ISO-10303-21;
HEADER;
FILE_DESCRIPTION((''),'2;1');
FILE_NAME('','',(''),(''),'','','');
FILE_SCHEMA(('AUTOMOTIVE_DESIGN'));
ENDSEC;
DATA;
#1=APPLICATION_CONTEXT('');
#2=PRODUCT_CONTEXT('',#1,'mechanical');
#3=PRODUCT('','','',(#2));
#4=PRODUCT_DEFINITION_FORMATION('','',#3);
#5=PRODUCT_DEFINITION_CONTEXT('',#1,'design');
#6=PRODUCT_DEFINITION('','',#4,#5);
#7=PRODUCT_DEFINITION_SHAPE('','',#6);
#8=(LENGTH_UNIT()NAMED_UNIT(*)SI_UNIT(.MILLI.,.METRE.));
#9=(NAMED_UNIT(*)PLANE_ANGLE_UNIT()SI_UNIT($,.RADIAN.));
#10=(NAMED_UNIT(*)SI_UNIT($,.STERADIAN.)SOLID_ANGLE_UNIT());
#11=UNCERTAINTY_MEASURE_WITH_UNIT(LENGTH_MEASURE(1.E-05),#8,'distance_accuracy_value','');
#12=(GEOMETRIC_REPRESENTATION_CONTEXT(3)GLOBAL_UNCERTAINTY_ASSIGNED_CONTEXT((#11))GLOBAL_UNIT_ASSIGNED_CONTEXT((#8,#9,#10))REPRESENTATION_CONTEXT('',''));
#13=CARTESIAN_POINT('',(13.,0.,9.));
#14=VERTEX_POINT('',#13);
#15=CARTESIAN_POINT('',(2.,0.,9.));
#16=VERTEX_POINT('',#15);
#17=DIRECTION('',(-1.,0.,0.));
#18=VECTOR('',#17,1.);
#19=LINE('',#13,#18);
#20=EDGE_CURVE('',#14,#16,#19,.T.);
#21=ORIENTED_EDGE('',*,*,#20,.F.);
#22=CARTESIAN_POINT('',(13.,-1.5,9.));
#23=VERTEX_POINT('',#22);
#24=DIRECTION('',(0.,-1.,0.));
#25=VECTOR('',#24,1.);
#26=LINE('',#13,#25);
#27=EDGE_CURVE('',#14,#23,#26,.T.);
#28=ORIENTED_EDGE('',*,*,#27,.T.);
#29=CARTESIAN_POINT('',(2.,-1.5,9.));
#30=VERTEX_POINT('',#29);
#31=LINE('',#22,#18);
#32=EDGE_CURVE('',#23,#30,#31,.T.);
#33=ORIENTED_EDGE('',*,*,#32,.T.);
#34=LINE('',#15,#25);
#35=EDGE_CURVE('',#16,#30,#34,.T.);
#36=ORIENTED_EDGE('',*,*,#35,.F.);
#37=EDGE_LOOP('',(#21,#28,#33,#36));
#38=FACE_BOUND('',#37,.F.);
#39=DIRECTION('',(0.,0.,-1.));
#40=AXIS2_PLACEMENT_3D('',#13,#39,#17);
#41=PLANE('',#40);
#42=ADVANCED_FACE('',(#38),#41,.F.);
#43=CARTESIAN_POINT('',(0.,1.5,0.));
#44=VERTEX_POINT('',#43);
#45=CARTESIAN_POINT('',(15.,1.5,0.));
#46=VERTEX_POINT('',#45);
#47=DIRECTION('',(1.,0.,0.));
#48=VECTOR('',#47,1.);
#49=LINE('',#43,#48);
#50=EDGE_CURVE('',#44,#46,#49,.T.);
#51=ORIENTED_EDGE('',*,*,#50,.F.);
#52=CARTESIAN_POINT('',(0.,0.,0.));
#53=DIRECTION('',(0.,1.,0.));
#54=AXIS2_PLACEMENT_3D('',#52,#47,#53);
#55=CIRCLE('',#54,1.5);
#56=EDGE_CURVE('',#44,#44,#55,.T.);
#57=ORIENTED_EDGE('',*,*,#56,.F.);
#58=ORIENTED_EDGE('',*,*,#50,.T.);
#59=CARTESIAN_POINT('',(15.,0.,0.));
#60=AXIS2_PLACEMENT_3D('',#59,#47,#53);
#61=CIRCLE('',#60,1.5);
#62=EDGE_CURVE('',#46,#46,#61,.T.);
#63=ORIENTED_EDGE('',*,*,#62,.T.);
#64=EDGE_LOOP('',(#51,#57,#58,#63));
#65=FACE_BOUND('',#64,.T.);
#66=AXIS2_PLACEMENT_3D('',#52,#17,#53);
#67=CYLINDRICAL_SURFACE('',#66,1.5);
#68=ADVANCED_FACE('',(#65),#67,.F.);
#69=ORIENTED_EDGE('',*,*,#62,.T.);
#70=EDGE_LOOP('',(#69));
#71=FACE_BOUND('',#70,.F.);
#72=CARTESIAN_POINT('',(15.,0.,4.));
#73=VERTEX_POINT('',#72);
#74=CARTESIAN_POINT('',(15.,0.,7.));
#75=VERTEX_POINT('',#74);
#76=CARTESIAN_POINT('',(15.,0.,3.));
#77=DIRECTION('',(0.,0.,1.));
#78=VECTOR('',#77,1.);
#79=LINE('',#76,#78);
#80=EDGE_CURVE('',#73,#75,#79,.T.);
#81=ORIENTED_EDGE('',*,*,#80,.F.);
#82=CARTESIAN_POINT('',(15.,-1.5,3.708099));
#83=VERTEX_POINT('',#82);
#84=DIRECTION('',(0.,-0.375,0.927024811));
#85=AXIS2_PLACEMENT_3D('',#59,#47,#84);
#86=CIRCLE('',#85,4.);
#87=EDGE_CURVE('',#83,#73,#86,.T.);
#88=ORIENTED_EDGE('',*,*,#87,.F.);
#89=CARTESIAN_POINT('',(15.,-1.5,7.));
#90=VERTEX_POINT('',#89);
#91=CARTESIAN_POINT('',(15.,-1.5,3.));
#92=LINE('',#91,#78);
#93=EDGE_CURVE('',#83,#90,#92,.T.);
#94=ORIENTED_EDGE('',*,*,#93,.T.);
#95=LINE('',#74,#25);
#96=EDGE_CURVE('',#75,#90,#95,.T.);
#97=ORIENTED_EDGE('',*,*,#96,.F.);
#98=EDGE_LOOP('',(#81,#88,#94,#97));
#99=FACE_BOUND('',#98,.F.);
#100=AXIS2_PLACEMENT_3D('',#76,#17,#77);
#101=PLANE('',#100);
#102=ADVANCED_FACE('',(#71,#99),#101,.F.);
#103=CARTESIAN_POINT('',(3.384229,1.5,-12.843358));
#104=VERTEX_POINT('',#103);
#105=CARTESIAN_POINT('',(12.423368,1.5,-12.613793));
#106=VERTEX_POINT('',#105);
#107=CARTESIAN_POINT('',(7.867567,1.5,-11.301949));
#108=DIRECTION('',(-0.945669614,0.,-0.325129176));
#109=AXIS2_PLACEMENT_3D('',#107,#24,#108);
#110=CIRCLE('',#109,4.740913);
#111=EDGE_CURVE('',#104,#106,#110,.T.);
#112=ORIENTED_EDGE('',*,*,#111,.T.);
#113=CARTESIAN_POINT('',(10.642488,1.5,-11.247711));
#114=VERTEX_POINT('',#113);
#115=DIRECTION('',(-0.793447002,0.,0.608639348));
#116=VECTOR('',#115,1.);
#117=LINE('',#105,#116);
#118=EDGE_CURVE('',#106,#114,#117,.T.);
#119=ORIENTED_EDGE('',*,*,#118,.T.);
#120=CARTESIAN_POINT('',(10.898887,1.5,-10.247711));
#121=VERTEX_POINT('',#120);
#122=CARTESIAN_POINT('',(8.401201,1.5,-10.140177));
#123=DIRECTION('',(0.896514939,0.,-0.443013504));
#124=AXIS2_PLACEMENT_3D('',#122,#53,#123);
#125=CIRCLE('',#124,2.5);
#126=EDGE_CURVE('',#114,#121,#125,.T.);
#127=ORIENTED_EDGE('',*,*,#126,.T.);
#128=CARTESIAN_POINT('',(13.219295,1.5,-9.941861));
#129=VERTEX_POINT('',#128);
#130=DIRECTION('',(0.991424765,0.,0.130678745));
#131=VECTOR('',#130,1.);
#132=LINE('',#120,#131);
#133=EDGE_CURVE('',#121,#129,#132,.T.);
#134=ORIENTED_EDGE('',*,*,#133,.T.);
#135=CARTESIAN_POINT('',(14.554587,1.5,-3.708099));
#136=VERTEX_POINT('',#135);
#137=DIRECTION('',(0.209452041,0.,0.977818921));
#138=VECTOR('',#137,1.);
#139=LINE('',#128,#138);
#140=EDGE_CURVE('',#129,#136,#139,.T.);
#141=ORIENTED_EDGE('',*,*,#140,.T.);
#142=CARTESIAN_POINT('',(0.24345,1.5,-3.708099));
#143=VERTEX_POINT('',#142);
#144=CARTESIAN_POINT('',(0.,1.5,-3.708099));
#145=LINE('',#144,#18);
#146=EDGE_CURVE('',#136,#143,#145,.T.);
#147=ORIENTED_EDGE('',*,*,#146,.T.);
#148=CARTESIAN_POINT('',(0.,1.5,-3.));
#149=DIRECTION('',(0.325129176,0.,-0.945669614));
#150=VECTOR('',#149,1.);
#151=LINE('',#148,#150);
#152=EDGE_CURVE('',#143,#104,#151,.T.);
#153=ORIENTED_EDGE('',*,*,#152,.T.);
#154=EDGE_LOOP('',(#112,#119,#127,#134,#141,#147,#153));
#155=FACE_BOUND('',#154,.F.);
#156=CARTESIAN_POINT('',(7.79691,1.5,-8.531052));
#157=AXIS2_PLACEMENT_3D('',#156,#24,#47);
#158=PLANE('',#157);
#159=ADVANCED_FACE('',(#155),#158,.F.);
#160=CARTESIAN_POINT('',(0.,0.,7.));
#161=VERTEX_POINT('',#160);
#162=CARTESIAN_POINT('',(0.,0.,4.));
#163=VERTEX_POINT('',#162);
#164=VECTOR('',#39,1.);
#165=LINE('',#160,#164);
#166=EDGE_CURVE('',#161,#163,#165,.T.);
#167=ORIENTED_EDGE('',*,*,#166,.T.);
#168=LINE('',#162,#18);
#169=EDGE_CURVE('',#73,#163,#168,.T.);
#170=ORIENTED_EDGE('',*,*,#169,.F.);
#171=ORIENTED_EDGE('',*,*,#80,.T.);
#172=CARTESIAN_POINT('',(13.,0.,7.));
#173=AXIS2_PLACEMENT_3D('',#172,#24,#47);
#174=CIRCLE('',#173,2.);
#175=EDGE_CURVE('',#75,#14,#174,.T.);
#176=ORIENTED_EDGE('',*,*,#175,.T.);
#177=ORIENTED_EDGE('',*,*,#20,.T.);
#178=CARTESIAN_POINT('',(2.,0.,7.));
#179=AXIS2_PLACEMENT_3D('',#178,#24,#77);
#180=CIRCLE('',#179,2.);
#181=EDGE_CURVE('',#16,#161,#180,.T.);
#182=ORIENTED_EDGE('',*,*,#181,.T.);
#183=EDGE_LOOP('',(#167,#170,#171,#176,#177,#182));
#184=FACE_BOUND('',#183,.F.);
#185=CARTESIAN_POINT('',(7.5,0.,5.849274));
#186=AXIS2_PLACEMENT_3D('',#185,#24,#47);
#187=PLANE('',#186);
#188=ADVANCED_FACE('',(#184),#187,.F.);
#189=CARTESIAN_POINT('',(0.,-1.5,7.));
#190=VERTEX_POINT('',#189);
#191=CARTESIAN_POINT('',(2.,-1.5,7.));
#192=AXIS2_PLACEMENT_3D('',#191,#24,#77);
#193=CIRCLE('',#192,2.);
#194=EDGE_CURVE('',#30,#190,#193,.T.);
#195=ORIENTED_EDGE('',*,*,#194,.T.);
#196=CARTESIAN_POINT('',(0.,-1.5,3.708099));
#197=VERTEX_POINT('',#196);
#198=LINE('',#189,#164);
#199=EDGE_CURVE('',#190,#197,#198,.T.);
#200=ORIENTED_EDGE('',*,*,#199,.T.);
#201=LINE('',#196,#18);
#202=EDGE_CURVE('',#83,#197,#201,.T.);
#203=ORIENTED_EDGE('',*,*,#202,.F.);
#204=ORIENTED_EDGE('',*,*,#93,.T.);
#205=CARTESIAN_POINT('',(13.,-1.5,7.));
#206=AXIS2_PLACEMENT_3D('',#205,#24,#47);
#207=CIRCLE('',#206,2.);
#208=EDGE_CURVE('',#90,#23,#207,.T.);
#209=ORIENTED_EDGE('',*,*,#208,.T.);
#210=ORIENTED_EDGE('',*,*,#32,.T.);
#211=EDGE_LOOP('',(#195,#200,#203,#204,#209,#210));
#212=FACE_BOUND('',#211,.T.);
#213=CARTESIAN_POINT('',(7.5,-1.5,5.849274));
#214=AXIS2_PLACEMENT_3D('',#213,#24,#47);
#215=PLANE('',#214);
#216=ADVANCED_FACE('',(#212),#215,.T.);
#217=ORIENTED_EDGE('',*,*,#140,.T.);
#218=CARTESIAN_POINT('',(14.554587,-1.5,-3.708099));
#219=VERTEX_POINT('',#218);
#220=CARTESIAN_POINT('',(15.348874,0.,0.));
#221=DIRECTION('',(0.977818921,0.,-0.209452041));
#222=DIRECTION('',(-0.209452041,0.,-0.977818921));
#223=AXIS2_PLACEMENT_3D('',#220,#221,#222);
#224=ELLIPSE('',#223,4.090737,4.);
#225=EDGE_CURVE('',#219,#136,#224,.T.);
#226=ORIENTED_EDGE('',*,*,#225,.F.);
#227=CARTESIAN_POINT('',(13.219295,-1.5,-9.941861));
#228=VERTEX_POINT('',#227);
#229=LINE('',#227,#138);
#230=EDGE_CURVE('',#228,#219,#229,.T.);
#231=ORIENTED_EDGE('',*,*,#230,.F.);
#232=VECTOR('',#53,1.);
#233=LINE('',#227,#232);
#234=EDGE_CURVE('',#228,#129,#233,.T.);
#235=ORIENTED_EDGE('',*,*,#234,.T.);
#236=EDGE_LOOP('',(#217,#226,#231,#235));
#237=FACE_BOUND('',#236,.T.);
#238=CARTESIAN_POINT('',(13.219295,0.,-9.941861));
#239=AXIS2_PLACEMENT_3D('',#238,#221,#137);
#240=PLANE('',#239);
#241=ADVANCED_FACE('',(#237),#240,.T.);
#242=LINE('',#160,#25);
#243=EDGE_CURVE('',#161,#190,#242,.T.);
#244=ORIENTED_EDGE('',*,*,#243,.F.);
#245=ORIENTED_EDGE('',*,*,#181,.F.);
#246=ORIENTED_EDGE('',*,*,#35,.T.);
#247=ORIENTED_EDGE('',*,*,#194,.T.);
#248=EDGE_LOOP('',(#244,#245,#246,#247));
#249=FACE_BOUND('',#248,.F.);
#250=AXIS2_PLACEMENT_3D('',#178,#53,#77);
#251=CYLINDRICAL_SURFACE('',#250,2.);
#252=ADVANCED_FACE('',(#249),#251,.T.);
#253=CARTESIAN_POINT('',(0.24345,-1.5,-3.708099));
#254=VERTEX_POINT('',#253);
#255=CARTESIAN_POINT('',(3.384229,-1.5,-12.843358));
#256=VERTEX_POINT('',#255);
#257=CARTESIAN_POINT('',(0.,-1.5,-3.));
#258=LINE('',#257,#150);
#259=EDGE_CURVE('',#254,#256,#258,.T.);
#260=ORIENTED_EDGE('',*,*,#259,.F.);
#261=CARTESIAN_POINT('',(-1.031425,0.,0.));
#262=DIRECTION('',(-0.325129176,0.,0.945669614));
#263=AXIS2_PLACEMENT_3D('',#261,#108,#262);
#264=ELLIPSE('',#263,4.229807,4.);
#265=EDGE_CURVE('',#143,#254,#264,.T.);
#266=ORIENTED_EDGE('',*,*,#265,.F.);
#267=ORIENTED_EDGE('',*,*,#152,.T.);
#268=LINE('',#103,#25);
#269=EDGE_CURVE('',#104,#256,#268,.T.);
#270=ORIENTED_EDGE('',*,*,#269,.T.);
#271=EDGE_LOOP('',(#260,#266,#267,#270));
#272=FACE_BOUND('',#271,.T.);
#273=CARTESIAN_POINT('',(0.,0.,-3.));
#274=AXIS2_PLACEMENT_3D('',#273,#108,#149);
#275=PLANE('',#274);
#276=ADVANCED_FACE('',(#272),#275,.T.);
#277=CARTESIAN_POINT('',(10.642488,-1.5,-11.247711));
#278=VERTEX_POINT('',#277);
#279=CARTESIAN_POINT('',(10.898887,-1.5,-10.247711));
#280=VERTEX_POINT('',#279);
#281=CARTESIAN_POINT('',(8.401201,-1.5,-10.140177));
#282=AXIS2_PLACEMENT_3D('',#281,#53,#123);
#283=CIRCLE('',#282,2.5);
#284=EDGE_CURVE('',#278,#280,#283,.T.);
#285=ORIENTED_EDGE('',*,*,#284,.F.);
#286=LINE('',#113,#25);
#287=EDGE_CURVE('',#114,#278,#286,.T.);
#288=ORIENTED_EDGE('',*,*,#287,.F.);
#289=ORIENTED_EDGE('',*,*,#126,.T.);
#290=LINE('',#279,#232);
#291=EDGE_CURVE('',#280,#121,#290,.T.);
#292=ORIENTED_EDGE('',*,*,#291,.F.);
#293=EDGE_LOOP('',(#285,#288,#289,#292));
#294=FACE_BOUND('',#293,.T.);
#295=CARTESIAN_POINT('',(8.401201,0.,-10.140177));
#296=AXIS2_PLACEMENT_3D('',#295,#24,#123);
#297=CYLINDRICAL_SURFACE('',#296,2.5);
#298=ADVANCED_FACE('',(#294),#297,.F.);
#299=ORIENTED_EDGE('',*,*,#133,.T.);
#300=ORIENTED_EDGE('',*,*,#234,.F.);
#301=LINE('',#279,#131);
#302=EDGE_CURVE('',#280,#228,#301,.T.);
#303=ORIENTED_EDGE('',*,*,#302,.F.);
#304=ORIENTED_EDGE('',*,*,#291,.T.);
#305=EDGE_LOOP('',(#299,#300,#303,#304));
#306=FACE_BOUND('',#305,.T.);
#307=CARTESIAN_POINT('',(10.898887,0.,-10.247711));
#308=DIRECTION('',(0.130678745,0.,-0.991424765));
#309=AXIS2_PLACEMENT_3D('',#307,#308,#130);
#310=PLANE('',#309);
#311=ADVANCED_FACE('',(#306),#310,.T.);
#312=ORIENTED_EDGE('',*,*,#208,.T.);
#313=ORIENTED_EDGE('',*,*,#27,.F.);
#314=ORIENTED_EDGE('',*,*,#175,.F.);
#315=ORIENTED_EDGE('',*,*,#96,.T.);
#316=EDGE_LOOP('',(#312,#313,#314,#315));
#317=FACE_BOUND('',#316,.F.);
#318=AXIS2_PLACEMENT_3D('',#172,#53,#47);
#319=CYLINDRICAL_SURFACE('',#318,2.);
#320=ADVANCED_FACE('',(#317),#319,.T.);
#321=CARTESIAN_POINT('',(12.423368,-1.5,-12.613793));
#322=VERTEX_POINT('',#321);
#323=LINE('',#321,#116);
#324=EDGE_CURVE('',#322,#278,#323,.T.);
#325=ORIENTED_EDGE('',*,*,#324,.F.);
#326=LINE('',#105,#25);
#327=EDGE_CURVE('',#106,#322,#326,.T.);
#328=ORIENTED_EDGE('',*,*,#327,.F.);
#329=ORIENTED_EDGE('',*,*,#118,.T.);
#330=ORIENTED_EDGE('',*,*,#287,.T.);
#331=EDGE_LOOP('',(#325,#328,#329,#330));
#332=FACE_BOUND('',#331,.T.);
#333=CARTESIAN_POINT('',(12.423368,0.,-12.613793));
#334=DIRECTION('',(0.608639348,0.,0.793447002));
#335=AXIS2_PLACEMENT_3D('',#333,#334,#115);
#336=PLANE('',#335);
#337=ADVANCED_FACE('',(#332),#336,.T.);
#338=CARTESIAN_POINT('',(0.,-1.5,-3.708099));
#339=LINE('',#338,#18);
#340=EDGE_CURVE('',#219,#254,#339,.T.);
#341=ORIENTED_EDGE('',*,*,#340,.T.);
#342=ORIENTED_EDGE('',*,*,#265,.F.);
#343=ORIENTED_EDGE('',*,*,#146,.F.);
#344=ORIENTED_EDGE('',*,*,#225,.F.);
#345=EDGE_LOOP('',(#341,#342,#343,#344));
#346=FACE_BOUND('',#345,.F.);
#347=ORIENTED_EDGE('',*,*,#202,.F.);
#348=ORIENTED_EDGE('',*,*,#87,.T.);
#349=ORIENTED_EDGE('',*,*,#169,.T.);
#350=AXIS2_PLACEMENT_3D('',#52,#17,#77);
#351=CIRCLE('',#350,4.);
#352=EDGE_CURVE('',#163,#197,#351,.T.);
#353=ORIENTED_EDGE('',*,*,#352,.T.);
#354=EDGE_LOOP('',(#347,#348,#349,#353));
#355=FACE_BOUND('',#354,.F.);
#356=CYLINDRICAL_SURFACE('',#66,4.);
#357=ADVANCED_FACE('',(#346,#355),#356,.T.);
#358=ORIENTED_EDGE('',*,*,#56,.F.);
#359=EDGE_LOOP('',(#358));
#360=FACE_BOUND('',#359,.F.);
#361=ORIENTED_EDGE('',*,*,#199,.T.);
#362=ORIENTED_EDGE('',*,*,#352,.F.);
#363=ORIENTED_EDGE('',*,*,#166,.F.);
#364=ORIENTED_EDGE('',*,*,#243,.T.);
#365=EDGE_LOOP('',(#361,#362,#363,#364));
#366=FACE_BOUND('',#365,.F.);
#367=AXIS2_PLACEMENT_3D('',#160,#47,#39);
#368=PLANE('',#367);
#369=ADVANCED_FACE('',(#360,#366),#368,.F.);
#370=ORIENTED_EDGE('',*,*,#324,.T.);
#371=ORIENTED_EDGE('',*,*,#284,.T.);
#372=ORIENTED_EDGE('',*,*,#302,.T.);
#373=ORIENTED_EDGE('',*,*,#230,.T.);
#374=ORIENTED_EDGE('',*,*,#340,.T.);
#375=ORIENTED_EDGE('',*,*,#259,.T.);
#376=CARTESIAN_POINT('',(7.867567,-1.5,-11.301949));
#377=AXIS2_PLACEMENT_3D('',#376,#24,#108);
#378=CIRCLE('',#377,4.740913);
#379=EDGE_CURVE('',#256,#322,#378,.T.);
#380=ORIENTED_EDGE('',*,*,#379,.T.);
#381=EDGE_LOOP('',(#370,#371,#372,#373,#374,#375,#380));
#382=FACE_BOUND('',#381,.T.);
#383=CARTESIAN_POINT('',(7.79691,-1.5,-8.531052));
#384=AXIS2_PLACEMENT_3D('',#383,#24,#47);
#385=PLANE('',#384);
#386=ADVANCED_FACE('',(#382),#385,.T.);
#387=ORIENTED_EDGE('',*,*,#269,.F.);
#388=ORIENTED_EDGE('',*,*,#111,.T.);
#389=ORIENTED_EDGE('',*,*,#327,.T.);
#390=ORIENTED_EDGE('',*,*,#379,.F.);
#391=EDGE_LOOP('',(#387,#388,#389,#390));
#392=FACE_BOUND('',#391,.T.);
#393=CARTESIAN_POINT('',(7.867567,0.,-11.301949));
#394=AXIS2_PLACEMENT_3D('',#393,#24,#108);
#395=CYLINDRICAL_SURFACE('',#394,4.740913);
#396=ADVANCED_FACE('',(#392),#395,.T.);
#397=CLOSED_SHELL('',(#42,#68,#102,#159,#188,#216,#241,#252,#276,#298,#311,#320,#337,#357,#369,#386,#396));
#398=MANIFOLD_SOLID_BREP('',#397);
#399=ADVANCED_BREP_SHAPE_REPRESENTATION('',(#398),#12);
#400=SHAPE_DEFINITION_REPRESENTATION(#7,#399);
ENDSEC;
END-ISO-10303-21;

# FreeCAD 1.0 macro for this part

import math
import FreeCAD as App
import Part
import Sketcher
from FreeCAD import Vector
Q = App.Units.Quantity

doc = App.newDocument("Part")
body = doc.addObject("PartDesign::Body", "Body")

# Sketch on YZ plane
sketch1 = body.newObject("Sketcher::SketchObject", "Sketch")
sketch1.AttachmentSupport = (doc.getObject("YZ_Plane"), [""])
sketch1.MapMode = "FlatFace"
sketch1.addGeometry(Part.Circle(Vector(0, 0, 0), Vector(0, 0, 1), 4), False)
sketch1.addGeometry(Part.Circle(Vector(0, 0, 0), Vector(0, 0, 1), 1.5), False)
sketch1.addConstraint(Sketcher.Constraint("Coincident", 0, 3, -1, 1))
sketch1.addConstraint(Sketcher.Constraint("Coincident", 1, 3, -1, 1))
sketch1.addConstraint(Sketcher.Constraint("Diameter", 0, Q("8 mm")))
sketch1.addConstraint(Sketcher.Constraint("Diameter", 1, Q("3 mm")))
pad1 = body.newObject("PartDesign::Pad", "Pad")
pad1.Profile = sketch1
pad1.Length = 15

# Sketch on XZ plane
sketch2 = body.newObject("Sketcher::SketchObject", "Sketch001")
sketch2.AttachmentSupport = (doc.getObject("XZ_Plane"), [""])
sketch2.MapMode = "FlatFace"
sketch2.addGeometry(Part.LineSegment(Vector(14.7, -3, 0), Vector(0, -3, 0)), False)
sketch2.addGeometry(Part.LineSegment(Vector(0, -3, 0), Vector(3.4, -12.8, 0)), False)
sketch2.addGeometry(Part.ArcOfCircle(Part.Circle(Vector(7.9, -11.3, 0), Vector(0, 0, 1), 4.7), math.radians(-161), math.radians(-16)), False)
sketch2.addGeometry(Part.LineSegment(Vector(12.4, -12.6, 0), Vector(10.6, -11.2, 0)), False)
sketch2.addGeometry(Part.ArcOfCircle(Part.Circle(Vector(8.4, -10.1, 0), Vector(0, 0, 1), 2.5), math.radians(-2), math.radians(334)), False)
sketch2.addGeometry(Part.LineSegment(Vector(10.9, -10.2, 0), Vector(13.2, -9.9, 0)), False)
sketch2.addGeometry(Part.LineSegment(Vector(13.2, -9.9, 0), Vector(14.7, -3, 0)), False)
sketch2.addConstraint(Sketcher.Constraint("Coincident", 0, 2, 1, 1))
sketch2.addConstraint(Sketcher.Constraint("Tangent", 1, 2, 2, 1))
sketch2.addConstraint(Sketcher.Constraint("Coincident", 2, 2, 3, 1))
sketch2.addConstraint(Sketcher.Constraint("Coincident", 3, 2, 4, 2))
sketch2.addConstraint(Sketcher.Constraint("Coincident", 4, 1, 5, 1))
sketch2.addConstraint(Sketcher.Constraint("Coincident", 5, 2, 6, 1))
sketch2.addConstraint(Sketcher.Constraint("Coincident", 6, 2, 0, 1))
sketch2.addConstraint(Sketcher.Constraint("Horizontal", 0))
sketch2.addConstraint(Sketcher.Constraint("PointOnObject", 0, 2, -2))
sketch2.addConstraint(Sketcher.Constraint("Radius", 4, Q("2.5 mm")))
sketch2.addConstraint(Sketcher.Constraint("DistanceY", 0, 2, -1, 1, Q("3 mm")))
sketch2.addConstraint(Sketcher.Constraint("DistanceY", 3, 2, 4, 1, Q("1 mm")))
sketch2.addConstraint(Sketcher.Constraint("Radius", 2, Q("4.740913 mm")))
sketch2.addConstraint(Sketcher.Constraint("DistanceX", -1, 1, 4, 3, Q("8.401201 mm")))
sketch2.addConstraint(Sketcher.Constraint("DistanceX", 2, 3, 2, 2, Q("4.555801 mm")))
sketch2.addConstraint(Sketcher.Constraint("DistanceX", 3, 2, 4, 1, Q("0.256399 mm")))
sketch2.addConstraint(Sketcher.Constraint("Distance", 6, Q("7.099331 mm")))
sketch2.addConstraint(Sketcher.Constraint("DistanceX", 0, 2, 0, 1, Q("14.706264 mm")))
sketch2.addConstraint(Sketcher.Constraint("DistanceY", 2, 3, -1, 1, Q("11.301949 mm")))
sketch2.addConstraint(Sketcher.Constraint("DistanceX", -1, 1, 1, 2, Q("3.384229 mm")))
sketch2.addConstraint(Sketcher.Constraint("DistanceY", 3, 2, -1, 1, Q("11.247711 mm")))
sketch2.addConstraint(Sketcher.Constraint("DistanceY", 5, 2, -1, 1, Q("9.941861 mm")))
pad2 = body.newObject("PartDesign::Pad", "Pad001")
pad2.Profile = sketch2
pad2.Length = 3
pad2.Midplane = True

# Sketch on XZ plane
sketch3 = body.newObject("Sketcher::SketchObject", "Sketch002")
sketch3.AttachmentSupport = (doc.getObject("XZ_Plane"), [""])
sketch3.MapMode = "FlatFace"
sketch3.addGeometry(Part.LineSegment(Vector(0, 7, 0), Vector(0, 3, 0)), False)
sketch3.addGeometry(Part.LineSegment(Vector(0, 3, 0), Vector(15, 3, 0)), False)
sketch3.addGeometry(Part.LineSegment(Vector(15, 3, 0), Vector(15, 7, 0)), False)
sketch3.addGeometry(Part.ArcOfCircle(Part.Circle(Vector(13, 7, 0), Vector(0, 0, 1), 2), math.radians(0), math.radians(90)), False)
sketch3.addGeometry(Part.LineSegment(Vector(13, 9, 0), Vector(2, 9, 0)), False)
sketch3.addGeometry(Part.ArcOfCircle(Part.Circle(Vector(2, 7, 0), Vector(0, 0, 1), 2), math.radians(90), math.radians(180)), False)
sketch3.addConstraint(Sketcher.Constraint("Coincident", 0, 2, 1, 1))
sketch3.addConstraint(Sketcher.Constraint("Coincident", 1, 2, 2, 1))
sketch3.addConstraint(Sketcher.Constraint("Tangent", 2, 2, 3, 1))
sketch3.addConstraint(Sketcher.Constraint("Tangent", 3, 2, 4, 1))
sketch3.addConstraint(Sketcher.Constraint("Tangent", 4, 2, 5, 1))
sketch3.addConstraint(Sketcher.Constraint("Tangent", 5, 2, 0, 1))
sketch3.addConstraint(Sketcher.Constraint("Vertical", 0))
sketch3.addConstraint(Sketcher.Constraint("Horizontal", 1))
sketch3.addConstraint(Sketcher.Constraint("Vertical", 2))
sketch3.addConstraint(Sketcher.Constraint("Horizontal", 4))
sketch3.addConstraint(Sketcher.Constraint("Equal", 3, 5))
sketch3.addConstraint(Sketcher.Constraint("PointOnObject", 0, 2, -2))
sketch3.addConstraint(Sketcher.Constraint("Radius", 3, Q("2 mm")))
sketch3.addConstraint(Sketcher.Constraint("DistanceX", 1, 1, 1, 2, Q("15 mm")))
sketch3.addConstraint(Sketcher.Constraint("DistanceY", 0, 2, 0, 1, Q("4 mm")))
sketch3.addConstraint(Sketcher.Constraint("DistanceY", -1, 1, 3, 3, Q("7 mm")))
pad3 = body.newObject("PartDesign::Pad", "Pad002")
pad3.Profile = sketch3
pad3.Length = 1.5

doc.recompute()
